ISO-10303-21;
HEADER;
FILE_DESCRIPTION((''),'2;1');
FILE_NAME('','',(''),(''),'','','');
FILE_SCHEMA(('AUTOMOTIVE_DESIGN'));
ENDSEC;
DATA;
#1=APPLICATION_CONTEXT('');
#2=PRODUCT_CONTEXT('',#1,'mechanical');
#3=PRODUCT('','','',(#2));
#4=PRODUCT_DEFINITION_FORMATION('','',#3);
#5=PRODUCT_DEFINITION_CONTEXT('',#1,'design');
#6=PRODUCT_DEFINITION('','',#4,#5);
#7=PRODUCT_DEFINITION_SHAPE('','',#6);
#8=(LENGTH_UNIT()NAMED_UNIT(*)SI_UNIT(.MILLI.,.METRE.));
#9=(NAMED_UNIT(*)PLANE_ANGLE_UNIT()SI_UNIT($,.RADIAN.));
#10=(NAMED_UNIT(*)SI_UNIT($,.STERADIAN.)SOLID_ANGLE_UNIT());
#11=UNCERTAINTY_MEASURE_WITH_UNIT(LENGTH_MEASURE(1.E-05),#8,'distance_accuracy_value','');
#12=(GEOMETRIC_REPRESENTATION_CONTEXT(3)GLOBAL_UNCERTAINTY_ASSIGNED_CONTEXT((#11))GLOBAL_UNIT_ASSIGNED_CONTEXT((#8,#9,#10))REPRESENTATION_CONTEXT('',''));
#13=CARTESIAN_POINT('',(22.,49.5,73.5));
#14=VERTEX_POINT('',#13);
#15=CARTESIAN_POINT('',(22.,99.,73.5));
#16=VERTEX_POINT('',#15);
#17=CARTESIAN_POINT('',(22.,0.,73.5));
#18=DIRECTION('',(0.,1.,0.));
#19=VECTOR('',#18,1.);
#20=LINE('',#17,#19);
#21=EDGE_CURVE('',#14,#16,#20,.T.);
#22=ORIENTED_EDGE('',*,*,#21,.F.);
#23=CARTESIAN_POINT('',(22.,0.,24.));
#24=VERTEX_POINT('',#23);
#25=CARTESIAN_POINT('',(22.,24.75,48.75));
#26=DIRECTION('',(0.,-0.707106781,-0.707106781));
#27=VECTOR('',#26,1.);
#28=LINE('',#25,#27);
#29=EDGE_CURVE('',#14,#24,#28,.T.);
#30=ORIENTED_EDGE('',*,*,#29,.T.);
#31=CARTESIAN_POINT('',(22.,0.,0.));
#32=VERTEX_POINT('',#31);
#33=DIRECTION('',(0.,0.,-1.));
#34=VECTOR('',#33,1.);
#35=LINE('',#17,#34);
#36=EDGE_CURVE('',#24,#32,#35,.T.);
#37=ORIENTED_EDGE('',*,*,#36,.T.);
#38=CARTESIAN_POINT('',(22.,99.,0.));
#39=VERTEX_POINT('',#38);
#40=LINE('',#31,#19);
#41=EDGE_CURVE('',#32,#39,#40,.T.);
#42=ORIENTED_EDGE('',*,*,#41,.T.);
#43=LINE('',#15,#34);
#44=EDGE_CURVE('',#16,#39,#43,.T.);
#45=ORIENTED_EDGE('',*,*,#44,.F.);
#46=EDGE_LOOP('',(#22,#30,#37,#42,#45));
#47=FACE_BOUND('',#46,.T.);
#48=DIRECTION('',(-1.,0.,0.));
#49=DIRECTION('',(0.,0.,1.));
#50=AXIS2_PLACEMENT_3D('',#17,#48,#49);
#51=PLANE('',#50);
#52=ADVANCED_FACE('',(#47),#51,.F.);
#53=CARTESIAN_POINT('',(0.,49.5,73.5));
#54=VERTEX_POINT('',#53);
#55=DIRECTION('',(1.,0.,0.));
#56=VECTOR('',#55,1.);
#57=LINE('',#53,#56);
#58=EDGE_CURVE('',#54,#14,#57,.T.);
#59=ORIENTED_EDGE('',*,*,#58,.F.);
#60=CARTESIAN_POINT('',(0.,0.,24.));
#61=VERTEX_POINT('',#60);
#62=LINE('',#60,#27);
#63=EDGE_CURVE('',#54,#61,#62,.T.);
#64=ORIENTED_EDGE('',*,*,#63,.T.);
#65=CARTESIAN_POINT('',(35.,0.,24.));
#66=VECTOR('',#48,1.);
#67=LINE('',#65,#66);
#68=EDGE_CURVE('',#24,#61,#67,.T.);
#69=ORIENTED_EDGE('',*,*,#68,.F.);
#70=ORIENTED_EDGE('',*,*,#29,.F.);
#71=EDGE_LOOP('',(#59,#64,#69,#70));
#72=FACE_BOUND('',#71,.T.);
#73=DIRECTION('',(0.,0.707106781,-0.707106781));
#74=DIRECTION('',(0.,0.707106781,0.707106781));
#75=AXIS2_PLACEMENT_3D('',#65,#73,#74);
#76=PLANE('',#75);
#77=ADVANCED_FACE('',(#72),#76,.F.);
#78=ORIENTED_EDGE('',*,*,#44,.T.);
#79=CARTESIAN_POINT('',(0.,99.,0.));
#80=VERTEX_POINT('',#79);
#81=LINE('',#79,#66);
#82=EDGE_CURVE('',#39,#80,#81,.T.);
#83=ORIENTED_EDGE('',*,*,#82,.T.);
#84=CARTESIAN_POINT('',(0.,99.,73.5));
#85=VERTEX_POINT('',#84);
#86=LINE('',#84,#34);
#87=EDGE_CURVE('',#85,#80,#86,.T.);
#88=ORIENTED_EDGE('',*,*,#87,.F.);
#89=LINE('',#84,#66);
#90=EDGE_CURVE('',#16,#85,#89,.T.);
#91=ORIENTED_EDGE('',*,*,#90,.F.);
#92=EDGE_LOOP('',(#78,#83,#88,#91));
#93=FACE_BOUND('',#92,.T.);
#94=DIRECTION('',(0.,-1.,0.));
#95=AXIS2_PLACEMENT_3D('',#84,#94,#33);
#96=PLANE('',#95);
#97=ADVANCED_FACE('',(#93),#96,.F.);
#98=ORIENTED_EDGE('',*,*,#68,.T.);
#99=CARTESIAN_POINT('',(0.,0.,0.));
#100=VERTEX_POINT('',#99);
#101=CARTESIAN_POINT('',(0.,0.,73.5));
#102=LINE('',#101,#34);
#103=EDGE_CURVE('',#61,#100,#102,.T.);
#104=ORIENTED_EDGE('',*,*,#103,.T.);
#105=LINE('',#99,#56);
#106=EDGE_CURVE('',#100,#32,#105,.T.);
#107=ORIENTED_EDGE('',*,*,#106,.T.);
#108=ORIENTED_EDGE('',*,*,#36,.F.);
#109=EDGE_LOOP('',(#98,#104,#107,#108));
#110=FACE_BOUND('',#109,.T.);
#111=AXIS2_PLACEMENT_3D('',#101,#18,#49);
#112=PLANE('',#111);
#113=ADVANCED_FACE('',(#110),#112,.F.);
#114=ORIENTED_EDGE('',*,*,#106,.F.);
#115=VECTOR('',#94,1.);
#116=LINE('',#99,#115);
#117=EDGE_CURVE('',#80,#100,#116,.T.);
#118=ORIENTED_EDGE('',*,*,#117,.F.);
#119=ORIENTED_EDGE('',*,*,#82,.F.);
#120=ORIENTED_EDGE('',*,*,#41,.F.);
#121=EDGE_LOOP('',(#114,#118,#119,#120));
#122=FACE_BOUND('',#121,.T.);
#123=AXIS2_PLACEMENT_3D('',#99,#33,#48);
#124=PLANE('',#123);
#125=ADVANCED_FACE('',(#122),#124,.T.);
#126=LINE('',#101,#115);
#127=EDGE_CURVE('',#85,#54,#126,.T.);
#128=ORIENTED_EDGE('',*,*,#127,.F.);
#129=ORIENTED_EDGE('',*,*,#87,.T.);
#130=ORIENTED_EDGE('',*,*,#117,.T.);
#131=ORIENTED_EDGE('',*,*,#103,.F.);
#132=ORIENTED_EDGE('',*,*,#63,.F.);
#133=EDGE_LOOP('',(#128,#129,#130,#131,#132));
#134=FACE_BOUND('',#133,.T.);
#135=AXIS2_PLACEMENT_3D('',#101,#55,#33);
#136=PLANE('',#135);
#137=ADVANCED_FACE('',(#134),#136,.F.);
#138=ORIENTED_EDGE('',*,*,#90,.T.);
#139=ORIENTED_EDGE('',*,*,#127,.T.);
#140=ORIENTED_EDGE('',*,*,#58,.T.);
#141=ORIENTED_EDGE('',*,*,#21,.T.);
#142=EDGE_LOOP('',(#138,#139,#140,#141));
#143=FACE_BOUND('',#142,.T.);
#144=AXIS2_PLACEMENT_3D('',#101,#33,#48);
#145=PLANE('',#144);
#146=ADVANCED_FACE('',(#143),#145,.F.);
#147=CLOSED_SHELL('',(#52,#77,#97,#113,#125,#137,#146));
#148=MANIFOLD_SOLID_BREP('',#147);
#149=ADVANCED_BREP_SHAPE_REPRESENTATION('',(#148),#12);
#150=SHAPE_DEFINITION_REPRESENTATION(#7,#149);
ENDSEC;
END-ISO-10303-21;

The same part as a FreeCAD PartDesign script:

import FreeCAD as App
import Part
import Sketcher
Q = App.Units.Quantity

doc = App.newDocument("Part")
body = doc.addObject("PartDesign::Body", "Body")

sketch1 = doc.addObject("Sketcher::SketchObject", "Sketch")
body.addObject(sketch1)
sketch1.AttachmentSupport = (doc.XY_Plane, [""])
sketch1.MapMode = "FlatFace"
sketch1.addGeometry(Part.LineSegment(App.Vector(0, 99, 0), App.Vector(0, 0, 0)), False)
sketch1.addGeometry(Part.LineSegment(App.Vector(0, 0, 0), App.Vector(22, 0, 0)), False)
sketch1.addGeometry(Part.LineSegment(App.Vector(22, 0, 0), App.Vector(22, 99, 0)), False)
sketch1.addGeometry(Part.LineSegment(App.Vector(22, 99, 0), App.Vector(0, 99, 0)), False)
sketch1.addConstraint(Sketcher.Constraint("Coincident", 0, 2, 1, 1))
sketch1.addConstraint(Sketcher.Constraint("Coincident", 1, 2, 2, 1))
sketch1.addConstraint(Sketcher.Constraint("Coincident", 2, 2, 3, 1))
sketch1.addConstraint(Sketcher.Constraint("Coincident", 3, 2, 0, 1))
sketch1.addConstraint(Sketcher.Constraint("Vertical", 0))
sketch1.addConstraint(Sketcher.Constraint("Horizontal", 1))
sketch1.addConstraint(Sketcher.Constraint("Vertical", 2))
sketch1.addConstraint(Sketcher.Constraint("Horizontal", 3))
sketch1.addConstraint(Sketcher.Constraint("Coincident", 0, 2, -1, 1))
sketch1.addConstraint(Sketcher.Constraint("DistanceX", 1, 1, 1, 2, Q("22 mm")))
sketch1.addConstraint(Sketcher.Constraint("DistanceY", 0, 2, 0, 1, Q("99 mm")))
pad1 = doc.addObject("PartDesign::Pad", "Pad")
body.addObject(pad1)
pad1.Profile = sketch1
pad1.Length = 73.5

sketch2 = doc.addObject("Sketcher::SketchObject", "Sketch001")
body.addObject(sketch2)
sketch2.AttachmentSupport = (doc.YZ_Plane, [""])
sketch2.MapMode = "FlatFace"
sketch2.addGeometry(Part.LineSegment(App.Vector(50, 74, 0), App.Vector(0, 24, 0)), False)
sketch2.addGeometry(Part.LineSegment(App.Vector(0, 24, 0), App.Vector(0, 74, 0)), False)
sketch2.addGeometry(Part.LineSegment(App.Vector(0, 74, 0), App.Vector(50, 74, 0)), False)
sketch2.addConstraint(Sketcher.Constraint("Coincident", 0, 2, 1, 1))
sketch2.addConstraint(Sketcher.Constraint("Coincident", 1, 2, 2, 1))
sketch2.addConstraint(Sketcher.Constraint("Coincident", 2, 2, 0, 1))
sketch2.addConstraint(Sketcher.Constraint("Vertical", 1))
sketch2.addConstraint(Sketcher.Constraint("Horizontal", 2))
sketch2.addConstraint(Sketcher.Constraint("PointOnObject", 0, 2, -2))
sketch2.addConstraint(Sketcher.Constraint("Equal", 2, 1))
sketch2.addConstraint(Sketcher.Constraint("DistanceX", 2, 1, 2, 2, Q("49.5 mm")))
sketch2.addConstraint(Sketcher.Constraint("DistanceY", -1, 1, 0, 2, Q("24 mm")))
pocket1 = doc.addObject("PartDesign::Pocket", "Pocket")
body.addObject(pocket1)
pocket1.Profile = sketch2
pocket1.Length = 35
pocket1.Reversed = True

doc.recompute()
